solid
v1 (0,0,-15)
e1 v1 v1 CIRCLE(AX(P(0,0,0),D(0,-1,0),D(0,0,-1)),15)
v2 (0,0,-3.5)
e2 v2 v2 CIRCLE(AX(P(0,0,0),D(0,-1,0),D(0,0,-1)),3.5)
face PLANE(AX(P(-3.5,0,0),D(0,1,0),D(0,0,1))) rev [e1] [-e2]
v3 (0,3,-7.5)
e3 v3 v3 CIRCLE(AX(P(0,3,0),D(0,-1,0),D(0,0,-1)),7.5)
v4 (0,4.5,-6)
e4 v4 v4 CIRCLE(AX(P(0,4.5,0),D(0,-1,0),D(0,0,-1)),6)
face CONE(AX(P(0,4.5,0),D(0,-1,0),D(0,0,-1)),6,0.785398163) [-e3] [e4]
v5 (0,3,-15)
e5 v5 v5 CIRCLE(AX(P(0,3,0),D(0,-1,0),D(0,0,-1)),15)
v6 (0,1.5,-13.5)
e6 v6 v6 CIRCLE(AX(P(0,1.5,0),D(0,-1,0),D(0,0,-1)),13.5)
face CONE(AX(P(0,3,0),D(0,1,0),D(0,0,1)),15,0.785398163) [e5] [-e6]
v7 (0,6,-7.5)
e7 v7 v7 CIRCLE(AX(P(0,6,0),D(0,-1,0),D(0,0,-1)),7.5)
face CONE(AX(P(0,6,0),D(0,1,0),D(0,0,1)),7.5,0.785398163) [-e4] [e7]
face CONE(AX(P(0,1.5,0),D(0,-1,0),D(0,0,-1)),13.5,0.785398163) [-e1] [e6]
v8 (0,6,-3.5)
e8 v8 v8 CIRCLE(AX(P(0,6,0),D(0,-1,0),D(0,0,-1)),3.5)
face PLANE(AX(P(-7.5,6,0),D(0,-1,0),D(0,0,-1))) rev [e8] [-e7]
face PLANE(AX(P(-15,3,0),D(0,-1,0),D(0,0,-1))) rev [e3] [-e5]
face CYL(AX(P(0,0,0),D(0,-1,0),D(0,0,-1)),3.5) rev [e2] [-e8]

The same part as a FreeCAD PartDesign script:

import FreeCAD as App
import Part
import Sketcher
Q = App.Units.Quantity


def add_polygon(sketch, points):
    """Adds a closed chain of lines whose ends are joined by coincident constraints."""
    first, n = sketch.GeometryCount, len(points)
    for a, b in zip(points, points[1:] + points[:1]):
        sketch.addGeometry(Part.LineSegment(App.Vector(*a, 0), App.Vector(*b, 0)), False)
    for i in range(n):
        sketch.addConstraint(Sketcher.Constraint("Coincident", first + i, 2, first + (i + 1) % n, 1))

doc = App.newDocument("Part")
body = doc.addObject("PartDesign::Body", "Body")

# Sketch on XY plane
sketch1 = body.newObject("Sketcher::SketchObject", "Sketch")
sketch1.AttachmentSupport = (doc.getObject("XY_Plane"), [""])
sketch1.MapMode = "FlatFace"
add_polygon(sketch1, [(-3.5, 0), (-3.5, 6), (-7.5, 6), (-6, 4.5), (-7.5, 3), (-15, 3), (-13.5, 1.5), (-15, 0)])  # lines 0-7
sketch1.addConstraint([
    Sketcher.Constraint("Vertical", 0),
    Sketcher.Constraint("Horizontal", 1),
    Sketcher.Constraint("Horizontal", 4),
    Sketcher.Constraint("Horizontal", 7),
    Sketcher.Constraint("PointOnObject", 6, 2, -1),
    Sketcher.Constraint("Perpendicular", 2, 3),
    Sketcher.Constraint("Perpendicular", 3, 5),
    Sketcher.Constraint("Perpendicular", 5, 6),
    Sketcher.Constraint("Vertical", 1, 2, 3, 2),
    Sketcher.Constraint("Vertical", 4, 2, 6, 2),
    Sketcher.Constraint("Equal", 2, 3),
    Sketcher.Constraint("Equal", 3, 5),
    Sketcher.Constraint("DistanceX", 1, 2, 1, 1, Q("4 mm")),
    Sketcher.Constraint("DistanceY", 0, 1, 0, 2, Q("6 mm")),
    Sketcher.Constraint("DistanceX", 4, 2, 4, 1, Q("7.5 mm")),
    Sketcher.Constraint("DistanceX", 2, 2, -1, 1, Q("6 mm")),
])
revolution = body.newObject("PartDesign::Revolution", "Revolution")
revolution.Profile = sketch1
revolution.ReferenceAxis = (sketch1, ["V_Axis"])
revolution.Angle = 360

doc.recompute()
